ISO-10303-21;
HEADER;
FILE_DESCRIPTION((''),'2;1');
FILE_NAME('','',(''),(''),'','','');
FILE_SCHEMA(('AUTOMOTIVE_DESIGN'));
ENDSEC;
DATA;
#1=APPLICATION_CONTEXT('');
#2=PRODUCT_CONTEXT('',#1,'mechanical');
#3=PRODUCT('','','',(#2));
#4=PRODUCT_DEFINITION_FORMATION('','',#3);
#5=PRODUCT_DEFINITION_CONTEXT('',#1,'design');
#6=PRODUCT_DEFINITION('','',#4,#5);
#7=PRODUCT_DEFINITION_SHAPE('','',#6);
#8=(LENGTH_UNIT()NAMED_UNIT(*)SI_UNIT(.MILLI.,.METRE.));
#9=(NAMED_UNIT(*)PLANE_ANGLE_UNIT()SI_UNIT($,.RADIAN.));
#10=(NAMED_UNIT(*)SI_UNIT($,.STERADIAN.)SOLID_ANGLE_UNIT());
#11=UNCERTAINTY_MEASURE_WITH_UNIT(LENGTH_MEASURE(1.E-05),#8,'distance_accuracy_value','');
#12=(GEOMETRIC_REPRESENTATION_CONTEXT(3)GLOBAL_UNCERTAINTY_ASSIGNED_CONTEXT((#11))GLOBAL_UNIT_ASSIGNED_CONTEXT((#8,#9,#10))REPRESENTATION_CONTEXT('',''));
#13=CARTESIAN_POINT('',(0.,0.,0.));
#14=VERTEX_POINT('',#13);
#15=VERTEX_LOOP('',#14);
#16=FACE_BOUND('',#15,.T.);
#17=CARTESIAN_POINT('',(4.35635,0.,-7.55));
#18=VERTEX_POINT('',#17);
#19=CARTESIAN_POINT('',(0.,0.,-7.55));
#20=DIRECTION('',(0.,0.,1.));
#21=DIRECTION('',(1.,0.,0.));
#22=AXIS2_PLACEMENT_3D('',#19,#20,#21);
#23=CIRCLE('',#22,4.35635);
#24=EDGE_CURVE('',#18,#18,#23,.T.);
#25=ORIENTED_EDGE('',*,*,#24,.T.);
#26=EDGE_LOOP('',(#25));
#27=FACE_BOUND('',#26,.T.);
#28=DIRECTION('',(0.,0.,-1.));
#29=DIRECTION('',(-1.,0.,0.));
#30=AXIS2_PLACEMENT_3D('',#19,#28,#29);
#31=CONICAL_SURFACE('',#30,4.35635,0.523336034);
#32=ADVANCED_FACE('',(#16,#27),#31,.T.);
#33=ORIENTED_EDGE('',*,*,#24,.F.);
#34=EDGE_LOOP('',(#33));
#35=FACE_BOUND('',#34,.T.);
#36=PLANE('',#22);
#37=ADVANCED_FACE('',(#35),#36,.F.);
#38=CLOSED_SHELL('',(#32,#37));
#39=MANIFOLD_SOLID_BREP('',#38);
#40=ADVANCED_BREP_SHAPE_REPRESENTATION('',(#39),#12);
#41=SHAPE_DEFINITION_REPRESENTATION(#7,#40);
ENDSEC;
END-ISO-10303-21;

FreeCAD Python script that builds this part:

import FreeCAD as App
import Part
import Sketcher
Q = App.Units.Quantity

doc = App.newDocument("Part")
body = doc.addObject("PartDesign::Body", "Body")

sketch1 = doc.addObject("Sketcher::SketchObject", "Sketch")
body.addObject(sketch1)
sketch1.AttachmentSupport = (doc.XZ_Plane, [""])
sketch1.MapMode = "FlatFace"
sketch1.addGeometry([
    Part.LineSegment(App.Vector(0, 0, 0), App.Vector(0, -7.5, 0)),
    Part.LineSegment(App.Vector(0, -7.5, 0), App.Vector(-4.4, -7.5, 0)),
    Part.LineSegment(App.Vector(-4.4, -7.5, 0), App.Vector(0, 0, 0)),
], False)
sketch1.addConstraint([
    Sketcher.Constraint("Coincident", 0, 2, 1, 1),
    Sketcher.Constraint("Coincident", 1, 2, 2, 1),
    Sketcher.Constraint("Coincident", 2, 2, 0, 1),
    Sketcher.Constraint("Vertical", 0),
    Sketcher.Constraint("Horizontal", 1),
    Sketcher.Constraint("Coincident", 2, 2, -1, 1),
    Sketcher.Constraint("DistanceY", 0, 2, 0, 1, Q("7.55 mm")),
    Sketcher.Constraint("DistanceX", 1, 2, 1, 1, Q("4.35635 mm")),
])
revolution = doc.addObject("PartDesign::Revolution", "Revolution")
body.addObject(revolution)
revolution.Profile = sketch1
revolution.ReferenceAxis = (sketch1, ["V_Axis"])
revolution.Angle = 360

doc.recompute()
